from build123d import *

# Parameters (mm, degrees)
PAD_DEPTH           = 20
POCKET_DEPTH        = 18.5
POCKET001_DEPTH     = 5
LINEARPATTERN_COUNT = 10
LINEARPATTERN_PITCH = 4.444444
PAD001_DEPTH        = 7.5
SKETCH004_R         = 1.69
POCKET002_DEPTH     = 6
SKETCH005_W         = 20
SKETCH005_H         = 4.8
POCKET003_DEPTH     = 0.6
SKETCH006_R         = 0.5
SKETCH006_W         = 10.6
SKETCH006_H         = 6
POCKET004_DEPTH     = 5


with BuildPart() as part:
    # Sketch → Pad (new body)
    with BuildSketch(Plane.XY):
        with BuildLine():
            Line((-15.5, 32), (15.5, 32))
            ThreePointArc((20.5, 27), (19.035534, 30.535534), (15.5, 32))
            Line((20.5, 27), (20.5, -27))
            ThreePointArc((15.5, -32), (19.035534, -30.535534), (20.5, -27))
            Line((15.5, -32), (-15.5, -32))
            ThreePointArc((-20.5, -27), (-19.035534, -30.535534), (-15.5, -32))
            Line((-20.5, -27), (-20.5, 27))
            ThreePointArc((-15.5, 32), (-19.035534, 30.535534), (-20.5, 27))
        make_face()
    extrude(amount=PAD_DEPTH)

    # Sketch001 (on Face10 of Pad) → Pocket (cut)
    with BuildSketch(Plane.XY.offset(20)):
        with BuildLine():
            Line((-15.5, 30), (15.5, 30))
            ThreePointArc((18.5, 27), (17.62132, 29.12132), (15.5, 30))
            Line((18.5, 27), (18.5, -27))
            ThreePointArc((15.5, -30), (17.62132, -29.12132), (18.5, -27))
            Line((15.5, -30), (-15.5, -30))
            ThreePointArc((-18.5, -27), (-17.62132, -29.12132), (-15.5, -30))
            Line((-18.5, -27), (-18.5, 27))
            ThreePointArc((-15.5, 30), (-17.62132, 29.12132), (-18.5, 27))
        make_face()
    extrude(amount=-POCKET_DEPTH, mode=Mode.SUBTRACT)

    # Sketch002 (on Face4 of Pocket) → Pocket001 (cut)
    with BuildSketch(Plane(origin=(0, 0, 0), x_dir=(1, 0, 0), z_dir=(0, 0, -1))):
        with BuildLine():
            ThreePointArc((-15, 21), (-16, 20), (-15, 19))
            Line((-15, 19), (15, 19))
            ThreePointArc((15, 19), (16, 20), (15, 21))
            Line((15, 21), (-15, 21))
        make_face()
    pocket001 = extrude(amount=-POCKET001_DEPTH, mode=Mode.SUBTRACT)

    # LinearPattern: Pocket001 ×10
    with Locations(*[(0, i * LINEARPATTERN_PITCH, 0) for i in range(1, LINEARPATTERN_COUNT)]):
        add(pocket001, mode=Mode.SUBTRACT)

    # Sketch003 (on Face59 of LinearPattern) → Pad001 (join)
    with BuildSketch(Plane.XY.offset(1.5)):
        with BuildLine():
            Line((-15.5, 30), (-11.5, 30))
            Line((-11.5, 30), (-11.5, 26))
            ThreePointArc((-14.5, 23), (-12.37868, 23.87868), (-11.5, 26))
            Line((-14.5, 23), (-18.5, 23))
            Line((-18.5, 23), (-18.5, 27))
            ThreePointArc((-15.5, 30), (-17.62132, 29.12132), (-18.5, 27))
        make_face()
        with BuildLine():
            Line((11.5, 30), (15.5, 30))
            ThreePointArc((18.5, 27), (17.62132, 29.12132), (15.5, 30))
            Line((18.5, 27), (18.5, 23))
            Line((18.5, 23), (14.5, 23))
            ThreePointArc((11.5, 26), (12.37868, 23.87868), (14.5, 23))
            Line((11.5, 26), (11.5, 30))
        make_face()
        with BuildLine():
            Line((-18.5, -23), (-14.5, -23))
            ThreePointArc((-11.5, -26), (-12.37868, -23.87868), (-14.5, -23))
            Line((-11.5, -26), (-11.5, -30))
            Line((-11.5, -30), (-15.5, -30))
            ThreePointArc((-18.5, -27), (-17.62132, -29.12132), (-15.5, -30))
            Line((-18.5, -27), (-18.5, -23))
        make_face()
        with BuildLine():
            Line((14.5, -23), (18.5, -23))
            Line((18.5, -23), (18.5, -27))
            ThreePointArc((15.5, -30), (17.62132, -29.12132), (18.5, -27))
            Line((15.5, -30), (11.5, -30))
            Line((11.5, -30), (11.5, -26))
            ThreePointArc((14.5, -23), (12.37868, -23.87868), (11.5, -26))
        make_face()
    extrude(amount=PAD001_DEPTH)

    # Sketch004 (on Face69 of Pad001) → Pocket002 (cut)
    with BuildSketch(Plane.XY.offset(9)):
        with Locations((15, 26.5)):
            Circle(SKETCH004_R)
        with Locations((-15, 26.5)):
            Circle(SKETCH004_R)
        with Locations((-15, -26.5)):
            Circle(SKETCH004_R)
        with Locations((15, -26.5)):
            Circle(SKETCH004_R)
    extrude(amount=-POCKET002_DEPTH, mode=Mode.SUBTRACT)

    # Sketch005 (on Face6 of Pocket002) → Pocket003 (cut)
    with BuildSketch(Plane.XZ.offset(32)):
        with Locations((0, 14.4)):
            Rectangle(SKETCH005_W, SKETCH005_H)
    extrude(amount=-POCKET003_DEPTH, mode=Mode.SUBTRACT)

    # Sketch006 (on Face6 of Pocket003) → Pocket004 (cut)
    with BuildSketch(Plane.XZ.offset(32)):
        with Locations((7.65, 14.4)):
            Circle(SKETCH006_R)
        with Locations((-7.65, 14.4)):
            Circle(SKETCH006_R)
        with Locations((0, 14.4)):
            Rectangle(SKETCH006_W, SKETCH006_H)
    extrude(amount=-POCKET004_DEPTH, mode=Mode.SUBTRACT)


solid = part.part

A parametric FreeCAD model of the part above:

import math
import FreeCAD as App
import Part
import Sketcher
from FreeCAD import Vector
Q = App.Units.Quantity

doc = App.newDocument("Part")
body = doc.addObject("PartDesign::Body", "Body")

sketch1 = doc.addObject("Sketcher::SketchObject", "Sketch")
body.addObject(sketch1)
sketch1.AttachmentSupport = (doc.XY_Plane, [""])
sketch1.MapMode = "FlatFace"
sketch1.addGeometry([
    Part.LineSegment(Vector(15.5, 32, 0), Vector(-15.5, 32, 0)),
    Part.ArcOfCircle(Part.Circle(Vector(-15.5, 27, 0), Vector(0, 0, 1), 5), math.radians(89.999996), math.radians(180.000004)),
    Part.LineSegment(Vector(-20.5, 27, 0), Vector(-20.5, -27, 0)),
    Part.ArcOfCircle(Part.Circle(Vector(-15.5, -27, 0), Vector(0, 0, 1), 5), math.radians(179.999996), math.radians(270.000004)),
    Part.LineSegment(Vector(-15.5, -32, 0), Vector(15.5, -32, 0)),
    Part.ArcOfCircle(Part.Circle(Vector(15.5, -27, 0), Vector(0, 0, 1), 5), math.radians(-90.000004), math.radians(0.000004)),
    Part.LineSegment(Vector(20.5, -27, 0), Vector(20.5, 27, 0)),
    Part.ArcOfCircle(Part.Circle(Vector(15.5, 27, 0), Vector(0, 0, 1), 5), math.radians(-0.000004), math.radians(90.000004)),
], False)
sketch1.addConstraint([
    Sketcher.Constraint("Tangent", 0, 2, 1, 1),
    Sketcher.Constraint("Tangent", 1, 2, 2, 1),
    Sketcher.Constraint("Tangent", 2, 2, 3, 1),
    Sketcher.Constraint("Tangent", 3, 2, 4, 1),
    Sketcher.Constraint("Tangent", 4, 2, 5, 1),
    Sketcher.Constraint("Tangent", 5, 2, 6, 1),
    Sketcher.Constraint("Tangent", 6, 2, 7, 1),
    Sketcher.Constraint("Tangent", 7, 2, 0, 1),
    Sketcher.Constraint("Horizontal", 0),
    Sketcher.Constraint("Vertical", 2),
    Sketcher.Constraint("Horizontal", 4),
    Sketcher.Constraint("Vertical", 6),
    Sketcher.Constraint("Equal", 1, 3),
    Sketcher.Constraint("Equal", 3, 5),
    Sketcher.Constraint("Equal", 5, 7),
    Sketcher.Constraint("Symmetric", 1, 3, 5, 3, -1, 1),
    Sketcher.Constraint("Radius", 1, Q("5 mm")),
    Sketcher.Constraint("DistanceX", 0, 2, 0, 1, Q("31 mm")),
    Sketcher.Constraint("DistanceY", 2, 2, 2, 1, Q("54 mm")),
])
pad1 = doc.addObject("PartDesign::Pad", "Pad")
body.addObject(pad1)
pad1.Profile = sketch1
pad1.Length = 20

sketch2 = doc.addObject("Sketcher::SketchObject", "Sketch001")
body.addObject(sketch2)
sketch2.AttachmentSupport = (doc.XY_Plane, [""])
sketch2.MapMode = "FlatFace"
sketch2.AttachmentOffset = App.Placement(Vector(0, 0, 20), App.Rotation())
sketch2.addGeometry([
    Part.LineSegment(Vector(15.5, 30, 0), Vector(-15.5, 30, 0)),
    Part.ArcOfCircle(Part.Circle(Vector(-15.499999, 26.999999, 0), Vector(0, 0, 1), 3.000001), math.radians(90.000022), math.radians(179.999978)),
    Part.LineSegment(Vector(-18.5, 27, 0), Vector(-18.5, -27, 0)),
    Part.ArcOfCircle(Part.Circle(Vector(-15.499999, -26.999999, 0), Vector(0, 0, 1), 3.000001), math.radians(-179.999978), math.radians(-90.000022)),
    Part.LineSegment(Vector(-15.5, -30, 0), Vector(15.5, -30, 0)),
    Part.ArcOfCircle(Part.Circle(Vector(15.499999, -26.999999, 0), Vector(0, 0, 1), 3.000001), math.radians(-89.999978), math.radians(-0.000022)),
    Part.LineSegment(Vector(18.5, -27, 0), Vector(18.5, 27, 0)),
    Part.ArcOfCircle(Part.Circle(Vector(15.499999, 26.999999, 0), Vector(0, 0, 1), 3.000001), math.radians(0.000022), math.radians(89.999978)),
], False)
sketch2.addConstraint([
    Sketcher.Constraint("Tangent", 0, 2, 1, 1),
    Sketcher.Constraint("Tangent", 1, 2, 2, 1),
    Sketcher.Constraint("Tangent", 2, 2, 3, 1),
    Sketcher.Constraint("Tangent", 3, 2, 4, 1),
    Sketcher.Constraint("Tangent", 4, 2, 5, 1),
    Sketcher.Constraint("Tangent", 5, 2, 6, 1),
    Sketcher.Constraint("Tangent", 6, 2, 7, 1),
    Sketcher.Constraint("Tangent", 7, 2, 0, 1),
    Sketcher.Constraint("Horizontal", 0),
    Sketcher.Constraint("Vertical", 2),
    Sketcher.Constraint("Horizontal", 4),
    Sketcher.Constraint("Vertical", 6),
    Sketcher.Constraint("Equal", 1, 3),
    Sketcher.Constraint("Equal", 3, 5),
    Sketcher.Constraint("Equal", 5, 7),
    Sketcher.Constraint("Symmetric", 1, 3, 5, 3, -1, 1),
    Sketcher.Constraint("Radius", 1, Q("3.000001 mm")),
    Sketcher.Constraint("DistanceX", 0, 2, 0, 1, Q("31 mm")),
    Sketcher.Constraint("DistanceY", 2, 2, 2, 1, Q("54 mm")),
])
pocket1 = doc.addObject("PartDesign::Pocket", "Pocket")
body.addObject(pocket1)
pocket1.Profile = sketch2
pocket1.Length = 18.5

sketch3 = doc.addObject("Sketcher::SketchObject", "Sketch002")
body.addObject(sketch3)
sketch3.AttachmentSupport = (doc.XY_Plane, [""])
sketch3.MapMode = "FlatFace"
sketch3.addGeometry([
    Part.ArcOfCircle(Part.Circle(Vector(-15, -20, 0), Vector(0, 0, 1), 1), math.radians(90), math.radians(270)),
    Part.LineSegment(Vector(-15, -19, 0), Vector(15, -19, 0)),
    Part.ArcOfCircle(Part.Circle(Vector(15, -20, 0), Vector(0, 0, 1), 1), math.radians(-90), math.radians(90)),
    Part.LineSegment(Vector(15, -21, 0), Vector(-15, -21, 0)),
], False)
sketch3.addConstraint([
    Sketcher.Constraint("Tangent", 0, 1, 1, 1),
    Sketcher.Constraint("Tangent", 1, 2, 2, 2),
    Sketcher.Constraint("Tangent", 2, 1, 3, 1),
    Sketcher.Constraint("Tangent", 3, 2, 0, 2),
    Sketcher.Constraint("Horizontal", 1),
    Sketcher.Constraint("Horizontal", 3),
    Sketcher.Constraint("Radius", 0, Q("1 mm")),
    Sketcher.Constraint("DistanceX", 1, 1, 1, 2, Q("30 mm")),
    Sketcher.Constraint("DistanceX", 0, 3, -1, 1, Q("15 mm")),
    Sketcher.Constraint("DistanceY", 0, 3, -1, 1, Q("20 mm")),
])
pocket2 = doc.addObject("PartDesign::Pocket", "Pocket001")
body.addObject(pocket2)
pocket2.Profile = sketch3
pocket2.Length = 5
pocket2.Reversed = True
doc.recompute()

linearpattern = doc.addObject("PartDesign::LinearPattern", "LinearPattern")
body.addObject(linearpattern)
linearpattern.Originals = [pocket2]
linearpattern.Direction = (doc.Y_Axis, [""])
linearpattern.Mode = "offset"
linearpattern.Offset = 4.444444
linearpattern.Occurrences = 10
body.Tip = linearpattern

sketch4 = doc.addObject("Sketcher::SketchObject", "Sketch003")
body.addObject(sketch4)
sketch4.AttachmentSupport = (doc.XY_Plane, [""])
sketch4.MapMode = "FlatFace"
sketch4.AttachmentOffset = App.Placement(Vector(0, 0, 1.5), App.Rotation())
sketch4.addGeometry([
    Part.LineSegment(Vector(-11.5, 30, 0), Vector(-15.5, 30, 0)),
    Part.ArcOfCircle(Part.Circle(Vector(-15.499999, 26.999999, 0), Vector(0, 0, 1), 3.000001), math.radians(90.000022), math.radians(179.999978)),
    Part.LineSegment(Vector(-18.5, 27, 0), Vector(-18.5, 23, 0)),
    Part.LineSegment(Vector(-18.5, 23, 0), Vector(-14.5, 23, 0)),
    Part.ArcOfCircle(Part.Circle(Vector(-14.500001, 26.000001, 0), Vector(0, 0, 1), 3.000001), math.radians(-89.999978), math.radians(-0.000022)),
    Part.LineSegment(Vector(-11.5, 26, 0), Vector(-11.5, 30, 0)),
    Part.LineSegment(Vector(15.5, 30, 0), Vector(11.5, 30, 0)),
    Part.LineSegment(Vector(11.5, 30, 0), Vector(11.5, 26, 0)),
    Part.ArcOfCircle(Part.Circle(Vector(14.500001, 26.000001, 0), Vector(0, 0, 1), 3.000001), math.radians(-179.999978), math.radians(-90.000022)),
    Part.LineSegment(Vector(14.5, 23, 0), Vector(18.5, 23, 0)),
    Part.LineSegment(Vector(18.5, 23, 0), Vector(18.5, 27, 0)),
    Part.ArcOfCircle(Part.Circle(Vector(15.499999, 26.999999, 0), Vector(0, 0, 1), 3.000001), math.radians(0.000022), math.radians(89.999978)),
    Part.LineSegment(Vector(-14.5, -23, 0), Vector(-18.5, -23, 0)),
    Part.LineSegment(Vector(-18.5, -23, 0), Vector(-18.5, -27, 0)),
    Part.ArcOfCircle(Part.Circle(Vector(-15.499999, -26.999999, 0), Vector(0, 0, 1), 3.000001), math.radians(-179.999978), math.radians(-90.000022)),
    Part.LineSegment(Vector(-15.5, -30, 0), Vector(-11.5, -30, 0)),
    Part.LineSegment(Vector(-11.5, -30, 0), Vector(-11.5, -26, 0)),
    Part.ArcOfCircle(Part.Circle(Vector(-14.500001, -26.000001, 0), Vector(0, 0, 1), 3.000001), math.radians(0.000022), math.radians(89.999978)),
    Part.LineSegment(Vector(18.5, -23, 0), Vector(14.5, -23, 0)),
    Part.ArcOfCircle(Part.Circle(Vector(14.500001, -26.000001, 0), Vector(0, 0, 1), 3.000001), math.radians(90.000022), math.radians(179.999978)),
    Part.LineSegment(Vector(11.5, -26, 0), Vector(11.5, -30, 0)),
    Part.LineSegment(Vector(11.5, -30, 0), Vector(15.5, -30, 0)),
    Part.ArcOfCircle(Part.Circle(Vector(15.499999, -26.999999, 0), Vector(0, 0, 1), 3.000001), math.radians(-89.999978), math.radians(-0.000022)),
    Part.LineSegment(Vector(18.5, -27, 0), Vector(18.5, -23, 0)),
], False)
sketch4.addConstraint([
    Sketcher.Constraint("Tangent", 0, 2, 1, 1),
    Sketcher.Constraint("Tangent", 1, 2, 2, 1),
    Sketcher.Constraint("Coincident", 2, 2, 3, 1),
    Sketcher.Constraint("Tangent", 3, 2, 4, 1),
    Sketcher.Constraint("Tangent", 4, 2, 5, 1),
    Sketcher.Constraint("Coincident", 5, 2, 0, 1),
    Sketcher.Constraint("Coincident", 6, 2, 7, 1),
    Sketcher.Constraint("Tangent", 7, 2, 8, 1),
    Sketcher.Constraint("Tangent", 8, 2, 9, 1),
    Sketcher.Constraint("Coincident", 9, 2, 10, 1),
    Sketcher.Constraint("Tangent", 10, 2, 11, 1),
    Sketcher.Constraint("Tangent", 11, 2, 6, 1),
    Sketcher.Constraint("Coincident", 12, 2, 13, 1),
    Sketcher.Constraint("Tangent", 13, 2, 14, 1),
    Sketcher.Constraint("Tangent", 14, 2, 15, 1),
    Sketcher.Constraint("Coincident", 15, 2, 16, 1),
    Sketcher.Constraint("Tangent", 16, 2, 17, 1),
    Sketcher.Constraint("Tangent", 17, 2, 12, 1),
    Sketcher.Constraint("Tangent", 18, 2, 19, 1),
    Sketcher.Constraint("Tangent", 19, 2, 20, 1),
    Sketcher.Constraint("Coincident", 20, 2, 21, 1),
    Sketcher.Constraint("Tangent", 21, 2, 22, 1),
    Sketcher.Constraint("Tangent", 22, 2, 23, 1),
    Sketcher.Constraint("Coincident", 23, 2, 18, 1),
    Sketcher.Constraint("Horizontal", 0),
    Sketcher.Constraint("Vertical", 2),
    Sketcher.Constraint("Horizontal", 3),
    Sketcher.Constraint("Vertical", 5),
    Sketcher.Constraint("Horizontal", 6),
    Sketcher.Constraint("Vertical", 7),
    Sketcher.Constraint("Horizontal", 9),
    Sketcher.Constraint("Vertical", 10),
    Sketcher.Constraint("Horizontal", 12),
    Sketcher.Constraint("Vertical", 13),
    Sketcher.Constraint("Horizontal", 15),
    Sketcher.Constraint("Vertical", 16),
    Sketcher.Constraint("Horizontal", 18),
    Sketcher.Constraint("Vertical", 20),
    Sketcher.Constraint("Horizontal", 21),
    Sketcher.Constraint("Vertical", 23),
    Sketcher.Constraint("Equal", 1, 4),
    Sketcher.Constraint("Equal", 4, 8),
    Sketcher.Constraint("Equal", 8, 11),
    Sketcher.Constraint("Equal", 11, 14),
    Sketcher.Constraint("Equal", 14, 17),
    Sketcher.Constraint("Equal", 17, 19),
    Sketcher.Constraint("Equal", 19, 22),
    Sketcher.Constraint("Symmetric", 11, 3, 14, 3, -1, 1),
    Sketcher.Constraint("Symmetric", 8, 3, 17, 3, -1, 1),
    Sketcher.Constraint("Symmetric", 4, 3, 19, 3, -1, 1),
    Sketcher.Constraint("Symmetric", 1, 3, 22, 3, -1, 1),
    Sketcher.Constraint("Symmetric", 4, 3, 8, 3, -2),
    Sketcher.Constraint("Symmetric", 1, 3, 11, 3, -2),
    Sketcher.Constraint("Equal", 21, 2),
    Sketcher.Constraint("Radius", 1, Q("3.000001 mm")),
    Sketcher.Constraint("DistanceX", 0, 2, 0, 1, Q("4 mm")),
    Sketcher.Constraint("DistanceY", -1, 1, 1, 3, Q("26.999999 mm")),
    Sketcher.Constraint("DistanceX", 1, 3, 8, 3, Q("30 mm")),
])
pad2 = doc.addObject("PartDesign::Pad", "Pad001")
body.addObject(pad2)
pad2.Profile = sketch4
pad2.Length = 7.5

sketch5 = doc.addObject("Sketcher::SketchObject", "Sketch004")
body.addObject(sketch5)
sketch5.AttachmentSupport = (doc.XY_Plane, [""])
sketch5.MapMode = "FlatFace"
sketch5.AttachmentOffset = App.Placement(Vector(0, 0, 9), App.Rotation())
sketch5.addGeometry([
    Part.Circle(Vector(15, 26.5, 0), Vector(0, 0, 1), 1.69),
    Part.Circle(Vector(-15, 26.5, 0), Vector(0, 0, 1), 1.69),
    Part.Circle(Vector(-15, -26.5, 0), Vector(0, 0, 1), 1.69),
    Part.Circle(Vector(15, -26.5, 0), Vector(0, 0, 1), 1.69),
], False)
sketch5.addConstraint([
    Sketcher.Constraint("Equal", 0, 1),
    Sketcher.Constraint("Equal", 1, 2),
    Sketcher.Constraint("Equal", 2, 3),
    Sketcher.Constraint("Symmetric", 0, 3, 2, 3, -1, 1),
    Sketcher.Constraint("Symmetric", 1, 3, 3, 3, -1, 1),
    Sketcher.Constraint("Symmetric", 0, 3, 1, 3, -2),
    Sketcher.Constraint("Diameter", 0, Q("3.38 mm")),
    Sketcher.Constraint("DistanceX", -1, 1, 0, 3, Q("15 mm")),
    Sketcher.Constraint("DistanceY", 2, 3, 1, 3, Q("53 mm")),
])
pocket3 = doc.addObject("PartDesign::Pocket", "Pocket002")
body.addObject(pocket3)
pocket3.Profile = sketch5
pocket3.Length = 6

sketch6 = doc.addObject("Sketcher::SketchObject", "Sketch005")
body.addObject(sketch6)
sketch6.AttachmentSupport = (doc.XZ_Plane, [""])
sketch6.MapMode = "FlatFace"
sketch6.AttachmentOffset = App.Placement(Vector(0, 0, 32), App.Rotation())
sketch6.addGeometry([
    Part.LineSegment(Vector(-10, 16.8, 0), Vector(-10, 12, 0)),
    Part.LineSegment(Vector(-10, 12, 0), Vector(10, 12, 0)),
    Part.LineSegment(Vector(10, 12, 0), Vector(10, 16.8, 0)),
    Part.LineSegment(Vector(10, 16.8, 0), Vector(-10, 16.8, 0)),
], False)
sketch6.addConstraint([
    Sketcher.Constraint("Coincident", 0, 2, 1, 1),
    Sketcher.Constraint("Coincident", 1, 2, 2, 1),
    Sketcher.Constraint("Coincident", 2, 2, 3, 1),
    Sketcher.Constraint("Coincident", 3, 2, 0, 1),
    Sketcher.Constraint("Vertical", 0),
    Sketcher.Constraint("Horizontal", 1),
    Sketcher.Constraint("Vertical", 2),
    Sketcher.Constraint("Horizontal", 3),
    Sketcher.Constraint("DistanceX", 1, 1, 1, 2, Q("20 mm")),
    Sketcher.Constraint("DistanceY", 0, 2, 0, 1, Q("4.8 mm")),
    Sketcher.Constraint("DistanceX", 0, 2, -1, 1, Q("10 mm")),
    Sketcher.Constraint("DistanceY", -1, 1, 0, 2, Q("12 mm")),
])
pocket4 = doc.addObject("PartDesign::Pocket", "Pocket003")
body.addObject(pocket4)
pocket4.Profile = sketch6
pocket4.Length = 0.6

sketch7 = doc.addObject("Sketcher::SketchObject", "Sketch006")
body.addObject(sketch7)
sketch7.AttachmentSupport = (doc.XZ_Plane, [""])
sketch7.MapMode = "FlatFace"
sketch7.AttachmentOffset = App.Placement(Vector(0, 0, 32), App.Rotation())
sketch7.addGeometry([
    Part.Circle(Vector(7.65, 14.4, 0), Vector(0, 0, 1), 0.5),
    Part.Circle(Vector(-7.65, 14.4, 0), Vector(0, 0, 1), 0.5),
    Part.LineSegment(Vector(-5.3, 17.4, 0), Vector(-5.3, 11.4, 0)),
    Part.LineSegment(Vector(-5.3, 11.4, 0), Vector(5.3, 11.4, 0)),
    Part.LineSegment(Vector(5.3, 11.4, 0), Vector(5.3, 17.4, 0)),
    Part.LineSegment(Vector(5.3, 17.4, 0), Vector(-5.3, 17.4, 0)),
], False)
sketch7.addConstraint([
    Sketcher.Constraint("Coincident", 2, 2, 3, 1),
    Sketcher.Constraint("Coincident", 3, 2, 4, 1),
    Sketcher.Constraint("Coincident", 4, 2, 5, 1),
    Sketcher.Constraint("Coincident", 5, 2, 2, 1),
    Sketcher.Constraint("Vertical", 2),
    Sketcher.Constraint("Horizontal", 3),
    Sketcher.Constraint("Vertical", 4),
    Sketcher.Constraint("Horizontal", 5),
    Sketcher.Constraint("Equal", 0, 1),
    Sketcher.Constraint("Symmetric", 0, 3, 1, 3, -2),
    Sketcher.Constraint("Diameter", 0, Q("1 mm")),
    Sketcher.Constraint("DistanceY", 2, 2, 2, 1, Q("6 mm")),
    Sketcher.Constraint("DistanceX", 3, 1, 3, 2, Q("10.6 mm")),
    Sketcher.Constraint("DistanceY", 2, 2, 1, 3, Q("3 mm")),
    Sketcher.Constraint("DistanceY", -1, 1, 0, 3, Q("14.4 mm")),
    Sketcher.Constraint("DistanceX", 2, 2, -1, 1, Q("5.3 mm")),
    Sketcher.Constraint("DistanceX", 1, 3, 0, 3, Q("15.3 mm")),
])
pocket5 = doc.addObject("PartDesign::Pocket", "Pocket004")
body.addObject(pocket5)
pocket5.Profile = sketch7
pocket5.Length = 5

doc.recompute()
